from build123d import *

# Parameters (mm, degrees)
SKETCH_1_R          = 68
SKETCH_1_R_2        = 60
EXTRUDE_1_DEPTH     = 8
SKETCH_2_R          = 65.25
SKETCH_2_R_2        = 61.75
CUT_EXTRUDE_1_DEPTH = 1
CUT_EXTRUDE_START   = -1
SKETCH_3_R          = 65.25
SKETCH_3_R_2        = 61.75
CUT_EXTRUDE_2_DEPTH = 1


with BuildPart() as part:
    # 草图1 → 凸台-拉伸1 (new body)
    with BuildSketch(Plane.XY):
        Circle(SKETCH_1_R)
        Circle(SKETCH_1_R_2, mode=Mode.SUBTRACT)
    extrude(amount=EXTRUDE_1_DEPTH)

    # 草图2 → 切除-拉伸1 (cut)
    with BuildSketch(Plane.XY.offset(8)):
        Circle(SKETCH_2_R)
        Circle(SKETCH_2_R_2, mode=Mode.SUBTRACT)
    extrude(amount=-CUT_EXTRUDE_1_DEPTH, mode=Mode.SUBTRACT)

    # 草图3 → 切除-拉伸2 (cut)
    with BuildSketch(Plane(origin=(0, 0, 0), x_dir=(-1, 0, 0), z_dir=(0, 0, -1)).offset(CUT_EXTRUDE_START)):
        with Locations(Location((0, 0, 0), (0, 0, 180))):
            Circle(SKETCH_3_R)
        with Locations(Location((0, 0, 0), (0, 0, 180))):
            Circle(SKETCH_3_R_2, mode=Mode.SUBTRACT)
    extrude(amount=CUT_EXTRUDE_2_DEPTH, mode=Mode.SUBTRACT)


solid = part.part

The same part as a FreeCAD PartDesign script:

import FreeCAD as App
import Part
import Sketcher

V = App.Vector

doc = App.newDocument("Part")
body = doc.addObject("PartDesign::Body", "Body")

# Sketch on XY plane
sketch1 = doc.addObject("Sketcher::SketchObject", "Sketch")
body.addObject(sketch1)
sketch1.AttachmentSupport = (doc.XY_Plane, [""])
sketch1.MapMode = "FlatFace"
sketch1.addGeometry([
    Part.Circle(V(0, 0, 0), V(0, 0, 1), 68),
    Part.Circle(V(0, 0, 0), V(0, 0, 1), 60),
], False)
sketch1.addConstraint([
    Sketcher.Constraint("Coincident", 0, 3, -1, 1),
    Sketcher.Constraint("Coincident", 1, 3, -1, 1),
    Sketcher.Constraint("Diameter", 0, 136.0),
    Sketcher.Constraint("Diameter", 1, 120.0),
])
pad1 = doc.addObject("PartDesign::Pad", "Pad")
body.addObject(pad1)
pad1.Profile = sketch1
pad1.Length = 8

# Sketch on XY plane
sketch2 = doc.addObject("Sketcher::SketchObject", "Sketch001")
body.addObject(sketch2)
sketch2.AttachmentSupport = (doc.XY_Plane, [""])
sketch2.MapMode = "FlatFace"
sketch2.AttachmentOffset = App.Placement(V(0, 0, 8), App.Rotation())
sketch2.addGeometry([
    Part.Circle(V(0, 0, 0), V(0, 0, 1), 65.25),
    Part.Circle(V(0, 0, 0), V(0, 0, 1), 61.75),
], False)
sketch2.addConstraint([
    Sketcher.Constraint("Coincident", 0, 3, -1, 1),
    Sketcher.Constraint("Coincident", 1, 3, -1, 1),
    Sketcher.Constraint("Diameter", 0, 130.5),
    Sketcher.Constraint("Diameter", 1, 123.5),
])
pocket1 = doc.addObject("PartDesign::Pocket", "Pocket")
body.addObject(pocket1)
pocket1.Profile = sketch2
pocket1.Length = 1

# Sketch on XY plane
sketch3 = doc.addObject("Sketcher::SketchObject", "Sketch002")
body.addObject(sketch3)
sketch3.AttachmentSupport = (doc.XY_Plane, [""])
sketch3.MapMode = "FlatFace"
sketch3.AttachmentOffset = App.Placement(V(0, 0, 1), App.Rotation())
sketch3.addGeometry([
    Part.Circle(V(0, 0, 0), V(0, 0, 1), 65.25),
    Part.Circle(V(0, 0, 0), V(0, 0, 1), 61.75),
], False)
sketch3.addConstraint([
    Sketcher.Constraint("Coincident", 0, 3, -1, 1),
    Sketcher.Constraint("Coincident", 1, 3, -1, 1),
    Sketcher.Constraint("Diameter", 0, 130.5),
    Sketcher.Constraint("Diameter", 1, 123.5),
])
pocket2 = doc.addObject("PartDesign::Pocket", "Pocket001")
body.addObject(pocket2)
pocket2.Profile = sketch3
pocket2.Length = 1

doc.recompute()
